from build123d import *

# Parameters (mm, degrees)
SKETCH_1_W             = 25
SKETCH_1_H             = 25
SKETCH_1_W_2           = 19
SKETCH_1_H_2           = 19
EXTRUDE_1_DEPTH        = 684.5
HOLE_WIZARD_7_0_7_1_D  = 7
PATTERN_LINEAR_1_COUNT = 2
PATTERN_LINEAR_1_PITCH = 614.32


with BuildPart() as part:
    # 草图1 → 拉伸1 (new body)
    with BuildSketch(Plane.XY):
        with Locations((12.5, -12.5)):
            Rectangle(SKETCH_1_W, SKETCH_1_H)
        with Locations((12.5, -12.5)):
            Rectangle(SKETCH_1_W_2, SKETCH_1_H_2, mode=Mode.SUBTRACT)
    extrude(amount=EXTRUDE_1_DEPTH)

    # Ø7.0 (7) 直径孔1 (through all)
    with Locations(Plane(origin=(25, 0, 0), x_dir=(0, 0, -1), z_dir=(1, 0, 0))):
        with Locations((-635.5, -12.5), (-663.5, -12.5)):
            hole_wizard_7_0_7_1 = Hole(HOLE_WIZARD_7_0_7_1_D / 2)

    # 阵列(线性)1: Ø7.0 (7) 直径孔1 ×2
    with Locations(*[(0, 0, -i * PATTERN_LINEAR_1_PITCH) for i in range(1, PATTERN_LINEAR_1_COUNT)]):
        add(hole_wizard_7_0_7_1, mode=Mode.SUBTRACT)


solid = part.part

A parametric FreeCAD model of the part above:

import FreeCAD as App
import Part
import Sketcher

V = App.Vector
Q = App.Units.Quantity


def add_polygon(sketch, points):
    """Adds a closed chain of lines whose ends are joined by coincident constraints."""
    first, n = sketch.GeometryCount, len(points)
    for a, b in zip(points, points[1:] + points[:1]):
        sketch.addGeometry(Part.LineSegment(App.Vector(*a, 0), App.Vector(*b, 0)), False)
    for i in range(n):
        sketch.addConstraint(Sketcher.Constraint("Coincident", first + i, 2, first + (i + 1) % n, 1))

doc = App.newDocument("Part")
body = doc.addObject("PartDesign::Body", "Body")

sketch1 = body.newObject("Sketcher::SketchObject", "Sketch")
sketch1.AttachmentSupport = (doc.getObject("XY_Plane"), [""])
sketch1.MapMode = "FlatFace"
add_polygon(sketch1, [(0, 0), (0, -25), (25, -25), (25, 0)])
add_polygon(sketch1, [(22, -22), (3, -22), (3, -3), (22, -3)])
sketch1.addConstraint([
    Sketcher.Constraint("Vertical", 0),
    Sketcher.Constraint("Horizontal", 1),
    Sketcher.Constraint("Vertical", 2),
    Sketcher.Constraint("Horizontal", 3),
    Sketcher.Constraint("Horizontal", 4),
    Sketcher.Constraint("Vertical", 5),
    Sketcher.Constraint("Horizontal", 6),
    Sketcher.Constraint("Vertical", 7),
    Sketcher.Constraint("Coincident", 3, 2, -1, 1),
    Sketcher.Constraint("Equal", 3, 0),
    Sketcher.Constraint("Equal", 6, 5),
    Sketcher.Constraint("DistanceX", 1, 1, 1, 2, Q("25 mm")),
    Sketcher.Constraint("DistanceX", 4, 2, 4, 1, Q("19 mm")),
    Sketcher.Constraint("DistanceX", -1, 1, 4, 2, Q("3 mm")),
    Sketcher.Constraint("DistanceY", 4, 2, -1, 1, Q("22 mm")),
])
pad1 = body.newObject("PartDesign::Pad", "Pad")
pad1.Profile = sketch1
pad1.Length = 684.5

sketch2 = body.newObject("Sketcher::SketchObject", "Sketch001")
sketch2.AttachmentSupport = (doc.getObject("YZ_Plane"), [""])
sketch2.MapMode = "FlatFace"
sketch2.AttachmentOffset = App.Placement(V(0, 0, 25), App.Rotation())
sketch2.addGeometry([
    Part.Circle(V(-12.5, 635.5, 0), V(0, 0, 1), 3.5),
    Part.Circle(V(-12.5, 663.5, 0), V(0, 0, 1), 3.5),
], False)
sketch2.addConstraint([
    Sketcher.Constraint("Equal", 0, 1),
    Sketcher.Constraint("Vertical", 0, 3, 1, 3),
    Sketcher.Constraint("Diameter", 0, Q("7 mm")),
    Sketcher.Constraint("DistanceY", 0, 3, 1, 3, Q("28 mm")),
    Sketcher.Constraint("DistanceX", 0, 3, -1, 1, Q("12.5 mm")),
    Sketcher.Constraint("DistanceY", -1, 1, 0, 3, Q("635.5 mm")),
])
doc.recompute()
hole = body.newObject("PartDesign::Hole", "Hole")
hole.Profile = sketch2
hole.ThreadType = "None"
hole.Diameter = 7
hole.DepthType = "ThroughAll"
doc.recompute()

linearpattern = body.newObject("PartDesign::LinearPattern", "LinearPattern")
linearpattern.Originals = [hole]
linearpattern.Direction = (doc.getObject("Z_Axis"), [""])
linearpattern.Mode = "offset"
linearpattern.Offset = 614.32
linearpattern.Occurrences = 2
linearpattern.Reversed = True
body.Tip = linearpattern

doc.recompute()
